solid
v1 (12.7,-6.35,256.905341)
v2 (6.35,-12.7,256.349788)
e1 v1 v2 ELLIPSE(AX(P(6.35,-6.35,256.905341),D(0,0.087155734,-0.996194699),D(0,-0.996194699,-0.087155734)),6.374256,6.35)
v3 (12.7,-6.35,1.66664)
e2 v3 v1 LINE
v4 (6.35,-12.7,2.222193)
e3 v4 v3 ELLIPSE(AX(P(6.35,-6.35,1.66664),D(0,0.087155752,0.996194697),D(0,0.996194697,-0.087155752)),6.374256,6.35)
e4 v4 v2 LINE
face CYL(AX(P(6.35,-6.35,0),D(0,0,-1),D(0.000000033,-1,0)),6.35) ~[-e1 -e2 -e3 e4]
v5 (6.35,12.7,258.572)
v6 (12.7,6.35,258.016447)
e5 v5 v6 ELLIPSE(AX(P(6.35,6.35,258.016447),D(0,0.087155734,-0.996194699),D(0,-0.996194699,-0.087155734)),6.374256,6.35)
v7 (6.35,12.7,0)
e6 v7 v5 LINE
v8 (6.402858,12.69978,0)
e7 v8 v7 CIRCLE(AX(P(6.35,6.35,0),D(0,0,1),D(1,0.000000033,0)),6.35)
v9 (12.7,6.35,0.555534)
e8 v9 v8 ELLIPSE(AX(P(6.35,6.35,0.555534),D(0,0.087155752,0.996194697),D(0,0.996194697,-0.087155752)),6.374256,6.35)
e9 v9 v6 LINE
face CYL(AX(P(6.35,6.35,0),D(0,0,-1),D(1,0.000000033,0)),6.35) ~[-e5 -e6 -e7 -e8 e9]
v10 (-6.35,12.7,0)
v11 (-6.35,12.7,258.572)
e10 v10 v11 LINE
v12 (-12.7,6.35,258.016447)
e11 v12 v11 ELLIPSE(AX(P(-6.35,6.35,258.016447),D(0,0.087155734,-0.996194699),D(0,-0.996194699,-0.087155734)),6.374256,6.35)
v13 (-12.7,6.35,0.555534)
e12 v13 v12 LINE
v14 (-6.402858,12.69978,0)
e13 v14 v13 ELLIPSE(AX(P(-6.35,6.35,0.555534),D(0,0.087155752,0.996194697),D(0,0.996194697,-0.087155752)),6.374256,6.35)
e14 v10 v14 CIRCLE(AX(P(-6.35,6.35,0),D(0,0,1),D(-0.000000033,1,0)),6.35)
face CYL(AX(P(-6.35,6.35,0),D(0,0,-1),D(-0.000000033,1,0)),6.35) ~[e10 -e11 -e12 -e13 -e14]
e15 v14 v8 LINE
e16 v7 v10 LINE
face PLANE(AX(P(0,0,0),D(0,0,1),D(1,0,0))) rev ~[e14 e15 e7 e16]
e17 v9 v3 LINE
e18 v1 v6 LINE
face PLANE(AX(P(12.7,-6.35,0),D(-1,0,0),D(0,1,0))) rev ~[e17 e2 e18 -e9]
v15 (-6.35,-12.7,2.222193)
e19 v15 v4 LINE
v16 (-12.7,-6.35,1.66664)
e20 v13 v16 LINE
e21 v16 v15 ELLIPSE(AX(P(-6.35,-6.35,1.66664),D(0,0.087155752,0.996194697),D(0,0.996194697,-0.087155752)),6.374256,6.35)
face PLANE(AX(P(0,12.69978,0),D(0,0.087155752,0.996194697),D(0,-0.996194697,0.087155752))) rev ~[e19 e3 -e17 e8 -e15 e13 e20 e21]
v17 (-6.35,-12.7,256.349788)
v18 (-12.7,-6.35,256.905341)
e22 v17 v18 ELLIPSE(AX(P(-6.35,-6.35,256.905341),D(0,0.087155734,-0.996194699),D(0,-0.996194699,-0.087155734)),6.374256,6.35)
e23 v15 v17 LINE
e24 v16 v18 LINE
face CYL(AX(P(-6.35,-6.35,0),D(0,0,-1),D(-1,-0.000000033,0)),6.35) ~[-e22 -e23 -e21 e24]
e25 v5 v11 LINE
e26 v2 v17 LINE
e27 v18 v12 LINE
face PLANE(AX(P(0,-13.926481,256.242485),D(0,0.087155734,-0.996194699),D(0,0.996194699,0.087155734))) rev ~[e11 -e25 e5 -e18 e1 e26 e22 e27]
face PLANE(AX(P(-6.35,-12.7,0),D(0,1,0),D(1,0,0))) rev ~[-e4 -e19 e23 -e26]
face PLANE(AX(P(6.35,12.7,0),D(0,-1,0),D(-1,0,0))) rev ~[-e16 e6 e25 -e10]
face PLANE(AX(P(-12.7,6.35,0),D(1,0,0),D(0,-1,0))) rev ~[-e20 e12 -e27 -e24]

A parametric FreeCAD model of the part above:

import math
import FreeCAD as App
import Part
import Sketcher
Q = App.Units.Quantity

doc = App.newDocument("Part")
body = doc.addObject("PartDesign::Body", "Body")

sketch1 = body.newObject("Sketcher::SketchObject", "Sketch")
sketch1.AttachmentSupport = (doc.getObject("XY_Plane"), [""])
sketch1.MapMode = "FlatFace"
sketch1.addGeometry([
    Part.ArcOfCircle(Part.Circle(App.Vector(6.35, 6.35, 0), App.Vector(0, 0, 1), 6.35), math.radians(0.000002), math.radians(89.999998)),
    Part.LineSegment(App.Vector(6.35, 12.7, 0), App.Vector(-6.35, 12.7, 0)),
    Part.ArcOfCircle(Part.Circle(App.Vector(-6.35, 6.35, 0), App.Vector(0, 0, 1), 6.35), math.radians(90.000002), math.radians(179.999998)),
    Part.LineSegment(App.Vector(-12.7, 6.35, 0), App.Vector(-12.7, -6.35, 0)),
    Part.ArcOfCircle(Part.Circle(App.Vector(-6.35, -6.35, 0), App.Vector(0, 0, 1), 6.35), math.radians(-179.999998), math.radians(-90.000002)),
    Part.LineSegment(App.Vector(-6.35, -12.7, 0), App.Vector(6.35, -12.7, 0)),
    Part.ArcOfCircle(Part.Circle(App.Vector(6.35, -6.35, 0), App.Vector(0, 0, 1), 6.35), math.radians(-89.999998), math.radians(-0.000002)),
    Part.LineSegment(App.Vector(12.7, -6.35, 0), App.Vector(12.7, 6.35, 0)),
], False)
sketch1.addConstraint([
    Sketcher.Constraint("Tangent", 0, 2, 1, 1),
    Sketcher.Constraint("Tangent", 1, 2, 2, 1),
    Sketcher.Constraint("Tangent", 2, 2, 3, 1),
    Sketcher.Constraint("Tangent", 3, 2, 4, 1),
    Sketcher.Constraint("Tangent", 4, 2, 5, 1),
    Sketcher.Constraint("Tangent", 5, 2, 6, 1),
    Sketcher.Constraint("Tangent", 6, 2, 7, 1),
    Sketcher.Constraint("Tangent", 7, 2, 0, 1),
    Sketcher.Constraint("Horizontal", 1),
    Sketcher.Constraint("Vertical", 3),
    Sketcher.Constraint("Horizontal", 5),
    Sketcher.Constraint("Vertical", 7),
    Sketcher.Constraint("Equal", 0, 2),
    Sketcher.Constraint("Equal", 2, 4),
    Sketcher.Constraint("Equal", 4, 6),
    Sketcher.Constraint("Symmetric", 0, 3, 4, 3, -1, 1),
    Sketcher.Constraint("Equal", 5, 3),
    Sketcher.Constraint("Radius", 0, Q("0.25 in")),
    Sketcher.Constraint("DistanceX", 1, 2, 1, 1, Q("0.5 in")),
])
pad1 = body.newObject("PartDesign::Pad", "Pad")
pad1.Profile = sketch1
pad1.Length = Q("10.18 in")

sketch2 = body.newObject("Sketcher::SketchObject", "Sketch001")
sketch2.AttachmentSupport = (doc.getObject("YZ_Plane"), [""])
sketch2.MapMode = "FlatFace"
sketch2.addGeometry([
    Part.LineSegment(App.Vector(-17.71266, 0, 0), App.Vector(12.69978, 0, 0)),
    Part.LineSegment(App.Vector(12.69978, 0, 0), App.Vector(-17.71266, 2.660744, 0)),
    Part.LineSegment(App.Vector(-17.71266, 2.660744, 0), App.Vector(-17.71266, 0, 0)),
], False)
sketch2.addConstraint([
    Sketcher.Constraint("Coincident", 0, 2, 1, 1),
    Sketcher.Constraint("Coincident", 1, 2, 2, 1),
    Sketcher.Constraint("Coincident", 2, 2, 0, 1),
    Sketcher.Constraint("Horizontal", 0),
    Sketcher.Constraint("Vertical", 2),
    Sketcher.Constraint("PointOnObject", 0, 2, -1),
    Sketcher.Constraint("Angle", 1, Q("174.999999 deg")),
    Sketcher.Constraint("DistanceX", 0, 1, 0, 2, Q("30.41244 mm")),
    Sketcher.Constraint("DistanceX", -1, 1, 0, 2, Q("12.69978 mm")),
])
pocket1 = body.newObject("PartDesign::Pocket", "Pocket")
pocket1.Profile = sketch2
pocket1.Length = Q("1 in")
pocket1.Midplane = True

sketch3 = body.newObject("Sketcher::SketchObject", "Sketch002")
sketch3.AttachmentSupport = (doc.getObject("YZ_Plane"), [""])
sketch3.MapMode = "FlatFace"
sketch3.addGeometry([
    Part.LineSegment(App.Vector(-13.926481, 256.242485, 0), App.Vector(12.7, 258.572, 0)),
    Part.LineSegment(App.Vector(12.7, 258.572, 0), App.Vector(-13.926481, 258.572, 0)),
    Part.LineSegment(App.Vector(-13.926481, 258.572, 0), App.Vector(-13.926481, 256.242485, 0)),
], False)
sketch3.addConstraint([
    Sketcher.Constraint("Coincident", 0, 2, 1, 1),
    Sketcher.Constraint("Coincident", 1, 2, 2, 1),
    Sketcher.Constraint("Coincident", 2, 2, 0, 1),
    Sketcher.Constraint("Horizontal", 1),
    Sketcher.Constraint("Vertical", 2),
    Sketcher.Constraint("Angle", 0, Q("4.999999 deg")),
    Sketcher.Constraint("DistanceX", -1, 1, 0, 2, Q("0.5 in")),
    Sketcher.Constraint("DistanceY", -1, 1, 0, 2, Q("10.18 in")),
    Sketcher.Constraint("DistanceX", 1, 2, 1, 1, Q("26.626481 mm")),
])
pocket2 = body.newObject("PartDesign::Pocket", "Pocket001")
pocket2.Profile = sketch3
pocket2.Length = Q("1 in")
pocket2.Midplane = True

doc.recompute()
